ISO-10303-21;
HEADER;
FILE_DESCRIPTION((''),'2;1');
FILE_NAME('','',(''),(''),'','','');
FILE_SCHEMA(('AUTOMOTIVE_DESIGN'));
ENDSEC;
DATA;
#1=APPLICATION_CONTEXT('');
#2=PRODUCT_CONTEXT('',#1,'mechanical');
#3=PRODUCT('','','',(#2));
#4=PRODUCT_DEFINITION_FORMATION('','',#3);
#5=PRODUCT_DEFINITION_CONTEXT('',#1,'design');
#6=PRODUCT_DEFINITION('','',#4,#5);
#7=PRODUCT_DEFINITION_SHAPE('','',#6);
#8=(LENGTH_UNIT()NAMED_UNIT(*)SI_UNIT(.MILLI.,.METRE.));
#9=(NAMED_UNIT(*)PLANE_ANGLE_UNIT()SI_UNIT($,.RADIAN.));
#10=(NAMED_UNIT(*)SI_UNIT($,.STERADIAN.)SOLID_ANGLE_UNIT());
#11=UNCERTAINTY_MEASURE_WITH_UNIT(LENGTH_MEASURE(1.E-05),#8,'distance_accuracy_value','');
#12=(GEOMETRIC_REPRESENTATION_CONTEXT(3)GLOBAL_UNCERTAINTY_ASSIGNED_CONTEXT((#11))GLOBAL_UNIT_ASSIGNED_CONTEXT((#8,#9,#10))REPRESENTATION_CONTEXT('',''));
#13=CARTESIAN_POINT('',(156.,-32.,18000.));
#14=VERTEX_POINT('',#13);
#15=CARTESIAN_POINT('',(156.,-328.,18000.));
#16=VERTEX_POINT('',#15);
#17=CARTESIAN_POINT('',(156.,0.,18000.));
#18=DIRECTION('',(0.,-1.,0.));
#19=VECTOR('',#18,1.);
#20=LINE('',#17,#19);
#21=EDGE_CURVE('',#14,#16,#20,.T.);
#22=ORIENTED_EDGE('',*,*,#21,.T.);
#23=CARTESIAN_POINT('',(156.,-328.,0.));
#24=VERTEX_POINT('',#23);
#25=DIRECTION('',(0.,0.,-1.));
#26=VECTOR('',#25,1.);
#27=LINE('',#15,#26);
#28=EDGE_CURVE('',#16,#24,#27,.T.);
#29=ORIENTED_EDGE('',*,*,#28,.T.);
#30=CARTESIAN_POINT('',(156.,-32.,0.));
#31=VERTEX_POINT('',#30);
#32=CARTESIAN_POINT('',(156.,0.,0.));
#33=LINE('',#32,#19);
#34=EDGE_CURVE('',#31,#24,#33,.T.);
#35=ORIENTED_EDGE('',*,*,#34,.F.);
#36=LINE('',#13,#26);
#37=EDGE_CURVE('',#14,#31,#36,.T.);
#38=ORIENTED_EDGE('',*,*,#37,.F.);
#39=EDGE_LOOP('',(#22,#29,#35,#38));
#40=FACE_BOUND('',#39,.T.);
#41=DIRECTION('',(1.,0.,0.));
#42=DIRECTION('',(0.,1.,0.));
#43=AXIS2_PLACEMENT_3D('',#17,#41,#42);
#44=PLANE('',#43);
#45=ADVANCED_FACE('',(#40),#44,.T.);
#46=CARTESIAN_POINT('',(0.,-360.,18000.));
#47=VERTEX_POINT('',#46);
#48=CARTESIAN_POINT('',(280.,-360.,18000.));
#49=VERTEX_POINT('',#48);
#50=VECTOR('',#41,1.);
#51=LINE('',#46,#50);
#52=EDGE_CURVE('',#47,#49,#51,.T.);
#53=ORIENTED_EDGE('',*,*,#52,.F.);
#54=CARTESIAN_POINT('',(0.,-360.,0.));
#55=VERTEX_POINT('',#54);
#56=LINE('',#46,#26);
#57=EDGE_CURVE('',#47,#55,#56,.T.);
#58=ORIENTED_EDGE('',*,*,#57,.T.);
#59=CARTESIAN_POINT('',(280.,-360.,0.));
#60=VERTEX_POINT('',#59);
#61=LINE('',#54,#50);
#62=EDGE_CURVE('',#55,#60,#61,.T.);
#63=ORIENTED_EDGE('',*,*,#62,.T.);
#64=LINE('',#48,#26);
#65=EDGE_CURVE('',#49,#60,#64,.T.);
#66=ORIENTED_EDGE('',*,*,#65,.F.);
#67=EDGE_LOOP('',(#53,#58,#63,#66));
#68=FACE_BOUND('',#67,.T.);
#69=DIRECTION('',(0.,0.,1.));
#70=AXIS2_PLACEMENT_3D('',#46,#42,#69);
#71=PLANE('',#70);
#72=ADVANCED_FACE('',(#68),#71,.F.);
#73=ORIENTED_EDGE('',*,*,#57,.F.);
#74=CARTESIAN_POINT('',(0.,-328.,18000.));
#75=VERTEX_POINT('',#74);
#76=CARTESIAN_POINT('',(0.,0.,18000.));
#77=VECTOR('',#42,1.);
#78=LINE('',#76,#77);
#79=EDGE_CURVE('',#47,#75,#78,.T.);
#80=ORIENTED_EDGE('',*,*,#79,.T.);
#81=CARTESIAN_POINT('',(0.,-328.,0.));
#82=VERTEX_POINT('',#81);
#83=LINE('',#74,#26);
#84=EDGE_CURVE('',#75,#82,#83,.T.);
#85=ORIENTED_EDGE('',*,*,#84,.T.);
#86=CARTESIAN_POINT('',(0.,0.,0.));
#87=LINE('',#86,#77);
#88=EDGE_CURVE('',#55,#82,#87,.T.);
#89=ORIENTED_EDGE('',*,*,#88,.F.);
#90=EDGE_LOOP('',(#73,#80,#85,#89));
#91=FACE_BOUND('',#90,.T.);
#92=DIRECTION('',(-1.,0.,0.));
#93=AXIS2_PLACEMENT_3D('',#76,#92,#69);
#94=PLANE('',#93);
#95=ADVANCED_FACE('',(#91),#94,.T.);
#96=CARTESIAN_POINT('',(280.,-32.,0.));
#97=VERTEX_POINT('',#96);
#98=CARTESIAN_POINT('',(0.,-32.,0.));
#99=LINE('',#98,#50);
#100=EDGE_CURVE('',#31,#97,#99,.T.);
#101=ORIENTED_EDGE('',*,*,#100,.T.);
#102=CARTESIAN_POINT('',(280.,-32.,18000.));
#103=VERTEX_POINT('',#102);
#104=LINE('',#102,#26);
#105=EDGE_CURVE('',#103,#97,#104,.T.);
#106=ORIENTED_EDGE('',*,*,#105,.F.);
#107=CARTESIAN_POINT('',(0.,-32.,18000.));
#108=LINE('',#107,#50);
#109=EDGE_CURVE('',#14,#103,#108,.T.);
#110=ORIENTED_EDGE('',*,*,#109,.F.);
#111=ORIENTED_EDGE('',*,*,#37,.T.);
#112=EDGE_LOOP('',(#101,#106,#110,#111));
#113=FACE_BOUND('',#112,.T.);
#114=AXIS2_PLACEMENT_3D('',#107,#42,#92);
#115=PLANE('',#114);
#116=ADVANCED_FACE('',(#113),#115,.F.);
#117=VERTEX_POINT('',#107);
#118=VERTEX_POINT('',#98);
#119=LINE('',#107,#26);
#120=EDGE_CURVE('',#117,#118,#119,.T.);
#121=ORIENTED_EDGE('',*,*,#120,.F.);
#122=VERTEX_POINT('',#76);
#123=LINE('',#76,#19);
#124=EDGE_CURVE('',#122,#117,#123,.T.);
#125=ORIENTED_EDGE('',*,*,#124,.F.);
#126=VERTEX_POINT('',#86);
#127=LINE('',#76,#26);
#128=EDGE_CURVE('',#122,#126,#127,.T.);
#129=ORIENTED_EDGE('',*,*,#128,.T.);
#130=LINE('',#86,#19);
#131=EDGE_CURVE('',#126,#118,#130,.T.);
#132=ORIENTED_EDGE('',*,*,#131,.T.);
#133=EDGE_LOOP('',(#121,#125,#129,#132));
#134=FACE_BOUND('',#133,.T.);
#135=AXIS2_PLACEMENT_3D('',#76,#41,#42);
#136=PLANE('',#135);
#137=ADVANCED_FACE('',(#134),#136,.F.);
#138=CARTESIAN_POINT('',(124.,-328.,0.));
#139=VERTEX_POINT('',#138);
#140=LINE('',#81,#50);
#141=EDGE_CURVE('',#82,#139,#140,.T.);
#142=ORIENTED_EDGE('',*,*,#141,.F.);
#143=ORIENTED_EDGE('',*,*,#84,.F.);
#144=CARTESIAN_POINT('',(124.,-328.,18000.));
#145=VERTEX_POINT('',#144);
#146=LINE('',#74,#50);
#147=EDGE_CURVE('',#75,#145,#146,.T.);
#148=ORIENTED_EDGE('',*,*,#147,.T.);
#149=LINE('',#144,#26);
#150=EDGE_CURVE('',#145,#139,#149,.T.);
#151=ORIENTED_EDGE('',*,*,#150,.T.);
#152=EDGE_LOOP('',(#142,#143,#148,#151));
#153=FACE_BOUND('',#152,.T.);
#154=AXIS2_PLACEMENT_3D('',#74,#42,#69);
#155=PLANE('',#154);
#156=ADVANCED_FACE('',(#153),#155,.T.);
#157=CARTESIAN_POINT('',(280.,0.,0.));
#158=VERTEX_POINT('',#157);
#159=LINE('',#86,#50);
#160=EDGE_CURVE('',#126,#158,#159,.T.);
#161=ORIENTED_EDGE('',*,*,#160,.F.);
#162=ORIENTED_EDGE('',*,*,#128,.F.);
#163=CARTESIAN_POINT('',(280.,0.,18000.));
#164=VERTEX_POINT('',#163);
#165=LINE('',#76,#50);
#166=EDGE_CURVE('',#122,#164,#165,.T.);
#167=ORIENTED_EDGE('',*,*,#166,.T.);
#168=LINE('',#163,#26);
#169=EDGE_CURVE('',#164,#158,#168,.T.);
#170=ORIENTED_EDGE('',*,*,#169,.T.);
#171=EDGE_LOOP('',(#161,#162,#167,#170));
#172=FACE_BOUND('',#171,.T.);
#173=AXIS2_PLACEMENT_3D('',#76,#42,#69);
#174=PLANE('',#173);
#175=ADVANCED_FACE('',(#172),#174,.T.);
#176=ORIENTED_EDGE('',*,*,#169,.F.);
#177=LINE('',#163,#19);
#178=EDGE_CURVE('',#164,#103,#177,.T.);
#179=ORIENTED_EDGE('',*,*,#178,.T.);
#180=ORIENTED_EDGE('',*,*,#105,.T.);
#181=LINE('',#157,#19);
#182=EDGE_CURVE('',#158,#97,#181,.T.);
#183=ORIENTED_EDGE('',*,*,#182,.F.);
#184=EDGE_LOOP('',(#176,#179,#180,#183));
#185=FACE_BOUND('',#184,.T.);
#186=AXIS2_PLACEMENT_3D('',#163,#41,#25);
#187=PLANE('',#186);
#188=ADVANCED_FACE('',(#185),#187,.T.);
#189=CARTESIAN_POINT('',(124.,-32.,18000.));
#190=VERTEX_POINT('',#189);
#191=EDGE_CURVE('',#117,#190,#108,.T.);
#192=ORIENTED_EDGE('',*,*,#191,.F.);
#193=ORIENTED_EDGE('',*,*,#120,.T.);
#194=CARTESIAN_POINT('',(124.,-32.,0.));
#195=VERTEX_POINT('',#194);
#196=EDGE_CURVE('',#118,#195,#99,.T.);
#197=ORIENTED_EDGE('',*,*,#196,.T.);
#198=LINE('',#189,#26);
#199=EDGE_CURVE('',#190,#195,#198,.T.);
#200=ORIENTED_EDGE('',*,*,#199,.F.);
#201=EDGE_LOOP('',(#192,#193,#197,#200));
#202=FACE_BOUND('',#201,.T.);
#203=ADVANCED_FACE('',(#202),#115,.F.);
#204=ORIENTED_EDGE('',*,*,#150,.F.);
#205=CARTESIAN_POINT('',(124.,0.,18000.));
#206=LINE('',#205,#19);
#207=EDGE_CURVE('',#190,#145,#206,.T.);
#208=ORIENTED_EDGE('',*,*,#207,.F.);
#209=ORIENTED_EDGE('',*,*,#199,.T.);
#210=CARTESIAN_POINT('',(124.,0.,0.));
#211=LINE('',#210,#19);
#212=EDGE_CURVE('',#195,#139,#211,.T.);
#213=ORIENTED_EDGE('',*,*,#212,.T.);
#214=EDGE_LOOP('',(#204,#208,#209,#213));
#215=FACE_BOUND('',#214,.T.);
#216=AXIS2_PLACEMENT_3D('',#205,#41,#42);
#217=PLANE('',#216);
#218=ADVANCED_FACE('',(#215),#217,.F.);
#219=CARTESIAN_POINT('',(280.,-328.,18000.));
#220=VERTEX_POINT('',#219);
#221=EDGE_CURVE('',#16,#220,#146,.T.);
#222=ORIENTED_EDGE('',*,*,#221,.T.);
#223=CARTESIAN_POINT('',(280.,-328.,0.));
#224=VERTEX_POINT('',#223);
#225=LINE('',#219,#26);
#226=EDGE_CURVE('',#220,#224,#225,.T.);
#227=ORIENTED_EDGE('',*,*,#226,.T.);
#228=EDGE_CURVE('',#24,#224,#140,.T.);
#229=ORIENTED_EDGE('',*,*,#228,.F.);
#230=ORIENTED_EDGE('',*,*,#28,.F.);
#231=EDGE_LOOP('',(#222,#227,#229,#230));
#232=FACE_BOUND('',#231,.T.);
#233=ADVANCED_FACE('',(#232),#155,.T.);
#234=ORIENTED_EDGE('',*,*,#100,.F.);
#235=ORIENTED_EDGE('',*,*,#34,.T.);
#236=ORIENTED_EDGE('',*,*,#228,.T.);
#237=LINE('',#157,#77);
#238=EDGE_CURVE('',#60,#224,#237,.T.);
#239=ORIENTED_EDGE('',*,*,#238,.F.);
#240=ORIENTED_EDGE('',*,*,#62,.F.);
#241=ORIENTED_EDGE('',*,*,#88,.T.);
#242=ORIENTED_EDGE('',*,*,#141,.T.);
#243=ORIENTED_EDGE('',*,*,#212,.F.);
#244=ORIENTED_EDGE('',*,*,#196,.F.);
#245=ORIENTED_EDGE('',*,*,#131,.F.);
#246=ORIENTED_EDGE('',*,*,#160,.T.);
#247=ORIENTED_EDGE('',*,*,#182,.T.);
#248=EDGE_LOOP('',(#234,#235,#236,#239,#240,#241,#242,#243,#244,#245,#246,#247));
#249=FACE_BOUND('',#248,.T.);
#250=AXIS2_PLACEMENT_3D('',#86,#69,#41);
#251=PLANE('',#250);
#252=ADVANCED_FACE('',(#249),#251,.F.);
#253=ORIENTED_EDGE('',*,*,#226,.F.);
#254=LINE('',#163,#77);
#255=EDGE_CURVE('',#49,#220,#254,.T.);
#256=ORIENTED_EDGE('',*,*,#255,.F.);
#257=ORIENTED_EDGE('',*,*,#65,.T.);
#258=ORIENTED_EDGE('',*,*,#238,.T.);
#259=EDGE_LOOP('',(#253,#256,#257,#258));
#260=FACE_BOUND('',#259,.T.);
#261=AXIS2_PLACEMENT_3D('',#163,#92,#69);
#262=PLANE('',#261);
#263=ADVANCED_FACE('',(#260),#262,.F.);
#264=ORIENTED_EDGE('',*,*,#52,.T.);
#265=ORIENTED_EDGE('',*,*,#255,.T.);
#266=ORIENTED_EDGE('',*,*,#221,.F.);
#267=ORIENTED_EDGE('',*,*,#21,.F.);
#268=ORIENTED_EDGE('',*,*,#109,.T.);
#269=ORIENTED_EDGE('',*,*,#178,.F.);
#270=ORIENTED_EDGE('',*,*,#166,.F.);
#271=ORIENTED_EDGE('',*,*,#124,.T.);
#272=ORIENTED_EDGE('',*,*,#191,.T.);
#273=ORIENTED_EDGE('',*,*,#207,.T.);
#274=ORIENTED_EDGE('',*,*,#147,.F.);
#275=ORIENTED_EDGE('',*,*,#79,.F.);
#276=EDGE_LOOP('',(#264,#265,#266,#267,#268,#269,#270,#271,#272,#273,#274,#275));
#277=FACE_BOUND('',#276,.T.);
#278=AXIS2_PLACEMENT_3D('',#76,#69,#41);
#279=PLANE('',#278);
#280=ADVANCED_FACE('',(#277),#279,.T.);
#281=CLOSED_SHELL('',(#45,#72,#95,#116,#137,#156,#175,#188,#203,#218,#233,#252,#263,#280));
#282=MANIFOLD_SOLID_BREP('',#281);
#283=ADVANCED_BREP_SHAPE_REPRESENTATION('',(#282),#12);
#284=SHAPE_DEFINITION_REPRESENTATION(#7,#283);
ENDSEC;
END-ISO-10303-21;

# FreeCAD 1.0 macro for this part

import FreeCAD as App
import Part
import Sketcher

V = App.Vector
Q = App.Units.Quantity


def add_polygon(sketch, points):
    """Adds a closed chain of lines whose ends are joined by coincident constraints."""
    first, n = sketch.GeometryCount, len(points)
    for a, b in zip(points, points[1:] + points[:1]):
        sketch.addGeometry(Part.LineSegment(App.Vector(*a, 0), App.Vector(*b, 0)), False)
    for i in range(n):
        sketch.addConstraint(Sketcher.Constraint("Coincident", first + i, 2, first + (i + 1) % n, 1))

doc = App.newDocument("Part")
body = doc.addObject("PartDesign::Body", "Body")

# Sketch on XY plane
sketch1 = body.newObject("Sketcher::SketchObject", "Sketch")
sketch1.AttachmentSupport = (doc.getObject("XY_Plane"), [""])
sketch1.MapMode = "FlatFace"
add_polygon(sketch1, [(280, -328), (156, -328), (156, -32), (280, -32), (280, 0), (0, 0), (0, -32), (124, -32), (124, -328), (0, -328), (0, -360), (280, -360)])  # lines 0-11
sketch1.addConstraint([
    Sketcher.Constraint("Horizontal", 0),
    Sketcher.Constraint("Vertical", 1),
    Sketcher.Constraint("Horizontal", 2),
    Sketcher.Constraint("Vertical", 3),
    Sketcher.Constraint("Horizontal", 4),
    Sketcher.Constraint("Vertical", 5),
    Sketcher.Constraint("Horizontal", 6),
    Sketcher.Constraint("Vertical", 7),
    Sketcher.Constraint("Horizontal", 8),
    Sketcher.Constraint("Vertical", 9),
    Sketcher.Constraint("Horizontal", 10),
    Sketcher.Constraint("Vertical", 11),
    Sketcher.Constraint("Coincident", 4, 2, -1, 1),
    Sketcher.Constraint("PointOnObject", 8, 2, -2),
    Sketcher.Constraint("Horizontal", 2, 2, 5, 2),
    Sketcher.Constraint("Horizontal", 0, 2, 7, 2),
    Sketcher.Constraint("Vertical", 3, 2, 10, 2),
    Sketcher.Constraint("Equal", 2, 6),
    Sketcher.Constraint("Equal", 5, 9),
    Sketcher.Constraint("DistanceX", 0, 2, 0, 1, Q("124 mm")),
    Sketcher.Constraint("DistanceX", 4, 2, 4, 1, Q("280 mm")),
    Sketcher.Constraint("DistanceY", 1, 1, 1, 2, Q("296 mm")),
    Sketcher.Constraint("DistanceY", 3, 1, 3, 2, Q("32 mm")),
])
pad1 = body.newObject("PartDesign::Pad", "Pad")
pad1.Profile = sketch1
pad1.Length = 18000

doc.recompute()
